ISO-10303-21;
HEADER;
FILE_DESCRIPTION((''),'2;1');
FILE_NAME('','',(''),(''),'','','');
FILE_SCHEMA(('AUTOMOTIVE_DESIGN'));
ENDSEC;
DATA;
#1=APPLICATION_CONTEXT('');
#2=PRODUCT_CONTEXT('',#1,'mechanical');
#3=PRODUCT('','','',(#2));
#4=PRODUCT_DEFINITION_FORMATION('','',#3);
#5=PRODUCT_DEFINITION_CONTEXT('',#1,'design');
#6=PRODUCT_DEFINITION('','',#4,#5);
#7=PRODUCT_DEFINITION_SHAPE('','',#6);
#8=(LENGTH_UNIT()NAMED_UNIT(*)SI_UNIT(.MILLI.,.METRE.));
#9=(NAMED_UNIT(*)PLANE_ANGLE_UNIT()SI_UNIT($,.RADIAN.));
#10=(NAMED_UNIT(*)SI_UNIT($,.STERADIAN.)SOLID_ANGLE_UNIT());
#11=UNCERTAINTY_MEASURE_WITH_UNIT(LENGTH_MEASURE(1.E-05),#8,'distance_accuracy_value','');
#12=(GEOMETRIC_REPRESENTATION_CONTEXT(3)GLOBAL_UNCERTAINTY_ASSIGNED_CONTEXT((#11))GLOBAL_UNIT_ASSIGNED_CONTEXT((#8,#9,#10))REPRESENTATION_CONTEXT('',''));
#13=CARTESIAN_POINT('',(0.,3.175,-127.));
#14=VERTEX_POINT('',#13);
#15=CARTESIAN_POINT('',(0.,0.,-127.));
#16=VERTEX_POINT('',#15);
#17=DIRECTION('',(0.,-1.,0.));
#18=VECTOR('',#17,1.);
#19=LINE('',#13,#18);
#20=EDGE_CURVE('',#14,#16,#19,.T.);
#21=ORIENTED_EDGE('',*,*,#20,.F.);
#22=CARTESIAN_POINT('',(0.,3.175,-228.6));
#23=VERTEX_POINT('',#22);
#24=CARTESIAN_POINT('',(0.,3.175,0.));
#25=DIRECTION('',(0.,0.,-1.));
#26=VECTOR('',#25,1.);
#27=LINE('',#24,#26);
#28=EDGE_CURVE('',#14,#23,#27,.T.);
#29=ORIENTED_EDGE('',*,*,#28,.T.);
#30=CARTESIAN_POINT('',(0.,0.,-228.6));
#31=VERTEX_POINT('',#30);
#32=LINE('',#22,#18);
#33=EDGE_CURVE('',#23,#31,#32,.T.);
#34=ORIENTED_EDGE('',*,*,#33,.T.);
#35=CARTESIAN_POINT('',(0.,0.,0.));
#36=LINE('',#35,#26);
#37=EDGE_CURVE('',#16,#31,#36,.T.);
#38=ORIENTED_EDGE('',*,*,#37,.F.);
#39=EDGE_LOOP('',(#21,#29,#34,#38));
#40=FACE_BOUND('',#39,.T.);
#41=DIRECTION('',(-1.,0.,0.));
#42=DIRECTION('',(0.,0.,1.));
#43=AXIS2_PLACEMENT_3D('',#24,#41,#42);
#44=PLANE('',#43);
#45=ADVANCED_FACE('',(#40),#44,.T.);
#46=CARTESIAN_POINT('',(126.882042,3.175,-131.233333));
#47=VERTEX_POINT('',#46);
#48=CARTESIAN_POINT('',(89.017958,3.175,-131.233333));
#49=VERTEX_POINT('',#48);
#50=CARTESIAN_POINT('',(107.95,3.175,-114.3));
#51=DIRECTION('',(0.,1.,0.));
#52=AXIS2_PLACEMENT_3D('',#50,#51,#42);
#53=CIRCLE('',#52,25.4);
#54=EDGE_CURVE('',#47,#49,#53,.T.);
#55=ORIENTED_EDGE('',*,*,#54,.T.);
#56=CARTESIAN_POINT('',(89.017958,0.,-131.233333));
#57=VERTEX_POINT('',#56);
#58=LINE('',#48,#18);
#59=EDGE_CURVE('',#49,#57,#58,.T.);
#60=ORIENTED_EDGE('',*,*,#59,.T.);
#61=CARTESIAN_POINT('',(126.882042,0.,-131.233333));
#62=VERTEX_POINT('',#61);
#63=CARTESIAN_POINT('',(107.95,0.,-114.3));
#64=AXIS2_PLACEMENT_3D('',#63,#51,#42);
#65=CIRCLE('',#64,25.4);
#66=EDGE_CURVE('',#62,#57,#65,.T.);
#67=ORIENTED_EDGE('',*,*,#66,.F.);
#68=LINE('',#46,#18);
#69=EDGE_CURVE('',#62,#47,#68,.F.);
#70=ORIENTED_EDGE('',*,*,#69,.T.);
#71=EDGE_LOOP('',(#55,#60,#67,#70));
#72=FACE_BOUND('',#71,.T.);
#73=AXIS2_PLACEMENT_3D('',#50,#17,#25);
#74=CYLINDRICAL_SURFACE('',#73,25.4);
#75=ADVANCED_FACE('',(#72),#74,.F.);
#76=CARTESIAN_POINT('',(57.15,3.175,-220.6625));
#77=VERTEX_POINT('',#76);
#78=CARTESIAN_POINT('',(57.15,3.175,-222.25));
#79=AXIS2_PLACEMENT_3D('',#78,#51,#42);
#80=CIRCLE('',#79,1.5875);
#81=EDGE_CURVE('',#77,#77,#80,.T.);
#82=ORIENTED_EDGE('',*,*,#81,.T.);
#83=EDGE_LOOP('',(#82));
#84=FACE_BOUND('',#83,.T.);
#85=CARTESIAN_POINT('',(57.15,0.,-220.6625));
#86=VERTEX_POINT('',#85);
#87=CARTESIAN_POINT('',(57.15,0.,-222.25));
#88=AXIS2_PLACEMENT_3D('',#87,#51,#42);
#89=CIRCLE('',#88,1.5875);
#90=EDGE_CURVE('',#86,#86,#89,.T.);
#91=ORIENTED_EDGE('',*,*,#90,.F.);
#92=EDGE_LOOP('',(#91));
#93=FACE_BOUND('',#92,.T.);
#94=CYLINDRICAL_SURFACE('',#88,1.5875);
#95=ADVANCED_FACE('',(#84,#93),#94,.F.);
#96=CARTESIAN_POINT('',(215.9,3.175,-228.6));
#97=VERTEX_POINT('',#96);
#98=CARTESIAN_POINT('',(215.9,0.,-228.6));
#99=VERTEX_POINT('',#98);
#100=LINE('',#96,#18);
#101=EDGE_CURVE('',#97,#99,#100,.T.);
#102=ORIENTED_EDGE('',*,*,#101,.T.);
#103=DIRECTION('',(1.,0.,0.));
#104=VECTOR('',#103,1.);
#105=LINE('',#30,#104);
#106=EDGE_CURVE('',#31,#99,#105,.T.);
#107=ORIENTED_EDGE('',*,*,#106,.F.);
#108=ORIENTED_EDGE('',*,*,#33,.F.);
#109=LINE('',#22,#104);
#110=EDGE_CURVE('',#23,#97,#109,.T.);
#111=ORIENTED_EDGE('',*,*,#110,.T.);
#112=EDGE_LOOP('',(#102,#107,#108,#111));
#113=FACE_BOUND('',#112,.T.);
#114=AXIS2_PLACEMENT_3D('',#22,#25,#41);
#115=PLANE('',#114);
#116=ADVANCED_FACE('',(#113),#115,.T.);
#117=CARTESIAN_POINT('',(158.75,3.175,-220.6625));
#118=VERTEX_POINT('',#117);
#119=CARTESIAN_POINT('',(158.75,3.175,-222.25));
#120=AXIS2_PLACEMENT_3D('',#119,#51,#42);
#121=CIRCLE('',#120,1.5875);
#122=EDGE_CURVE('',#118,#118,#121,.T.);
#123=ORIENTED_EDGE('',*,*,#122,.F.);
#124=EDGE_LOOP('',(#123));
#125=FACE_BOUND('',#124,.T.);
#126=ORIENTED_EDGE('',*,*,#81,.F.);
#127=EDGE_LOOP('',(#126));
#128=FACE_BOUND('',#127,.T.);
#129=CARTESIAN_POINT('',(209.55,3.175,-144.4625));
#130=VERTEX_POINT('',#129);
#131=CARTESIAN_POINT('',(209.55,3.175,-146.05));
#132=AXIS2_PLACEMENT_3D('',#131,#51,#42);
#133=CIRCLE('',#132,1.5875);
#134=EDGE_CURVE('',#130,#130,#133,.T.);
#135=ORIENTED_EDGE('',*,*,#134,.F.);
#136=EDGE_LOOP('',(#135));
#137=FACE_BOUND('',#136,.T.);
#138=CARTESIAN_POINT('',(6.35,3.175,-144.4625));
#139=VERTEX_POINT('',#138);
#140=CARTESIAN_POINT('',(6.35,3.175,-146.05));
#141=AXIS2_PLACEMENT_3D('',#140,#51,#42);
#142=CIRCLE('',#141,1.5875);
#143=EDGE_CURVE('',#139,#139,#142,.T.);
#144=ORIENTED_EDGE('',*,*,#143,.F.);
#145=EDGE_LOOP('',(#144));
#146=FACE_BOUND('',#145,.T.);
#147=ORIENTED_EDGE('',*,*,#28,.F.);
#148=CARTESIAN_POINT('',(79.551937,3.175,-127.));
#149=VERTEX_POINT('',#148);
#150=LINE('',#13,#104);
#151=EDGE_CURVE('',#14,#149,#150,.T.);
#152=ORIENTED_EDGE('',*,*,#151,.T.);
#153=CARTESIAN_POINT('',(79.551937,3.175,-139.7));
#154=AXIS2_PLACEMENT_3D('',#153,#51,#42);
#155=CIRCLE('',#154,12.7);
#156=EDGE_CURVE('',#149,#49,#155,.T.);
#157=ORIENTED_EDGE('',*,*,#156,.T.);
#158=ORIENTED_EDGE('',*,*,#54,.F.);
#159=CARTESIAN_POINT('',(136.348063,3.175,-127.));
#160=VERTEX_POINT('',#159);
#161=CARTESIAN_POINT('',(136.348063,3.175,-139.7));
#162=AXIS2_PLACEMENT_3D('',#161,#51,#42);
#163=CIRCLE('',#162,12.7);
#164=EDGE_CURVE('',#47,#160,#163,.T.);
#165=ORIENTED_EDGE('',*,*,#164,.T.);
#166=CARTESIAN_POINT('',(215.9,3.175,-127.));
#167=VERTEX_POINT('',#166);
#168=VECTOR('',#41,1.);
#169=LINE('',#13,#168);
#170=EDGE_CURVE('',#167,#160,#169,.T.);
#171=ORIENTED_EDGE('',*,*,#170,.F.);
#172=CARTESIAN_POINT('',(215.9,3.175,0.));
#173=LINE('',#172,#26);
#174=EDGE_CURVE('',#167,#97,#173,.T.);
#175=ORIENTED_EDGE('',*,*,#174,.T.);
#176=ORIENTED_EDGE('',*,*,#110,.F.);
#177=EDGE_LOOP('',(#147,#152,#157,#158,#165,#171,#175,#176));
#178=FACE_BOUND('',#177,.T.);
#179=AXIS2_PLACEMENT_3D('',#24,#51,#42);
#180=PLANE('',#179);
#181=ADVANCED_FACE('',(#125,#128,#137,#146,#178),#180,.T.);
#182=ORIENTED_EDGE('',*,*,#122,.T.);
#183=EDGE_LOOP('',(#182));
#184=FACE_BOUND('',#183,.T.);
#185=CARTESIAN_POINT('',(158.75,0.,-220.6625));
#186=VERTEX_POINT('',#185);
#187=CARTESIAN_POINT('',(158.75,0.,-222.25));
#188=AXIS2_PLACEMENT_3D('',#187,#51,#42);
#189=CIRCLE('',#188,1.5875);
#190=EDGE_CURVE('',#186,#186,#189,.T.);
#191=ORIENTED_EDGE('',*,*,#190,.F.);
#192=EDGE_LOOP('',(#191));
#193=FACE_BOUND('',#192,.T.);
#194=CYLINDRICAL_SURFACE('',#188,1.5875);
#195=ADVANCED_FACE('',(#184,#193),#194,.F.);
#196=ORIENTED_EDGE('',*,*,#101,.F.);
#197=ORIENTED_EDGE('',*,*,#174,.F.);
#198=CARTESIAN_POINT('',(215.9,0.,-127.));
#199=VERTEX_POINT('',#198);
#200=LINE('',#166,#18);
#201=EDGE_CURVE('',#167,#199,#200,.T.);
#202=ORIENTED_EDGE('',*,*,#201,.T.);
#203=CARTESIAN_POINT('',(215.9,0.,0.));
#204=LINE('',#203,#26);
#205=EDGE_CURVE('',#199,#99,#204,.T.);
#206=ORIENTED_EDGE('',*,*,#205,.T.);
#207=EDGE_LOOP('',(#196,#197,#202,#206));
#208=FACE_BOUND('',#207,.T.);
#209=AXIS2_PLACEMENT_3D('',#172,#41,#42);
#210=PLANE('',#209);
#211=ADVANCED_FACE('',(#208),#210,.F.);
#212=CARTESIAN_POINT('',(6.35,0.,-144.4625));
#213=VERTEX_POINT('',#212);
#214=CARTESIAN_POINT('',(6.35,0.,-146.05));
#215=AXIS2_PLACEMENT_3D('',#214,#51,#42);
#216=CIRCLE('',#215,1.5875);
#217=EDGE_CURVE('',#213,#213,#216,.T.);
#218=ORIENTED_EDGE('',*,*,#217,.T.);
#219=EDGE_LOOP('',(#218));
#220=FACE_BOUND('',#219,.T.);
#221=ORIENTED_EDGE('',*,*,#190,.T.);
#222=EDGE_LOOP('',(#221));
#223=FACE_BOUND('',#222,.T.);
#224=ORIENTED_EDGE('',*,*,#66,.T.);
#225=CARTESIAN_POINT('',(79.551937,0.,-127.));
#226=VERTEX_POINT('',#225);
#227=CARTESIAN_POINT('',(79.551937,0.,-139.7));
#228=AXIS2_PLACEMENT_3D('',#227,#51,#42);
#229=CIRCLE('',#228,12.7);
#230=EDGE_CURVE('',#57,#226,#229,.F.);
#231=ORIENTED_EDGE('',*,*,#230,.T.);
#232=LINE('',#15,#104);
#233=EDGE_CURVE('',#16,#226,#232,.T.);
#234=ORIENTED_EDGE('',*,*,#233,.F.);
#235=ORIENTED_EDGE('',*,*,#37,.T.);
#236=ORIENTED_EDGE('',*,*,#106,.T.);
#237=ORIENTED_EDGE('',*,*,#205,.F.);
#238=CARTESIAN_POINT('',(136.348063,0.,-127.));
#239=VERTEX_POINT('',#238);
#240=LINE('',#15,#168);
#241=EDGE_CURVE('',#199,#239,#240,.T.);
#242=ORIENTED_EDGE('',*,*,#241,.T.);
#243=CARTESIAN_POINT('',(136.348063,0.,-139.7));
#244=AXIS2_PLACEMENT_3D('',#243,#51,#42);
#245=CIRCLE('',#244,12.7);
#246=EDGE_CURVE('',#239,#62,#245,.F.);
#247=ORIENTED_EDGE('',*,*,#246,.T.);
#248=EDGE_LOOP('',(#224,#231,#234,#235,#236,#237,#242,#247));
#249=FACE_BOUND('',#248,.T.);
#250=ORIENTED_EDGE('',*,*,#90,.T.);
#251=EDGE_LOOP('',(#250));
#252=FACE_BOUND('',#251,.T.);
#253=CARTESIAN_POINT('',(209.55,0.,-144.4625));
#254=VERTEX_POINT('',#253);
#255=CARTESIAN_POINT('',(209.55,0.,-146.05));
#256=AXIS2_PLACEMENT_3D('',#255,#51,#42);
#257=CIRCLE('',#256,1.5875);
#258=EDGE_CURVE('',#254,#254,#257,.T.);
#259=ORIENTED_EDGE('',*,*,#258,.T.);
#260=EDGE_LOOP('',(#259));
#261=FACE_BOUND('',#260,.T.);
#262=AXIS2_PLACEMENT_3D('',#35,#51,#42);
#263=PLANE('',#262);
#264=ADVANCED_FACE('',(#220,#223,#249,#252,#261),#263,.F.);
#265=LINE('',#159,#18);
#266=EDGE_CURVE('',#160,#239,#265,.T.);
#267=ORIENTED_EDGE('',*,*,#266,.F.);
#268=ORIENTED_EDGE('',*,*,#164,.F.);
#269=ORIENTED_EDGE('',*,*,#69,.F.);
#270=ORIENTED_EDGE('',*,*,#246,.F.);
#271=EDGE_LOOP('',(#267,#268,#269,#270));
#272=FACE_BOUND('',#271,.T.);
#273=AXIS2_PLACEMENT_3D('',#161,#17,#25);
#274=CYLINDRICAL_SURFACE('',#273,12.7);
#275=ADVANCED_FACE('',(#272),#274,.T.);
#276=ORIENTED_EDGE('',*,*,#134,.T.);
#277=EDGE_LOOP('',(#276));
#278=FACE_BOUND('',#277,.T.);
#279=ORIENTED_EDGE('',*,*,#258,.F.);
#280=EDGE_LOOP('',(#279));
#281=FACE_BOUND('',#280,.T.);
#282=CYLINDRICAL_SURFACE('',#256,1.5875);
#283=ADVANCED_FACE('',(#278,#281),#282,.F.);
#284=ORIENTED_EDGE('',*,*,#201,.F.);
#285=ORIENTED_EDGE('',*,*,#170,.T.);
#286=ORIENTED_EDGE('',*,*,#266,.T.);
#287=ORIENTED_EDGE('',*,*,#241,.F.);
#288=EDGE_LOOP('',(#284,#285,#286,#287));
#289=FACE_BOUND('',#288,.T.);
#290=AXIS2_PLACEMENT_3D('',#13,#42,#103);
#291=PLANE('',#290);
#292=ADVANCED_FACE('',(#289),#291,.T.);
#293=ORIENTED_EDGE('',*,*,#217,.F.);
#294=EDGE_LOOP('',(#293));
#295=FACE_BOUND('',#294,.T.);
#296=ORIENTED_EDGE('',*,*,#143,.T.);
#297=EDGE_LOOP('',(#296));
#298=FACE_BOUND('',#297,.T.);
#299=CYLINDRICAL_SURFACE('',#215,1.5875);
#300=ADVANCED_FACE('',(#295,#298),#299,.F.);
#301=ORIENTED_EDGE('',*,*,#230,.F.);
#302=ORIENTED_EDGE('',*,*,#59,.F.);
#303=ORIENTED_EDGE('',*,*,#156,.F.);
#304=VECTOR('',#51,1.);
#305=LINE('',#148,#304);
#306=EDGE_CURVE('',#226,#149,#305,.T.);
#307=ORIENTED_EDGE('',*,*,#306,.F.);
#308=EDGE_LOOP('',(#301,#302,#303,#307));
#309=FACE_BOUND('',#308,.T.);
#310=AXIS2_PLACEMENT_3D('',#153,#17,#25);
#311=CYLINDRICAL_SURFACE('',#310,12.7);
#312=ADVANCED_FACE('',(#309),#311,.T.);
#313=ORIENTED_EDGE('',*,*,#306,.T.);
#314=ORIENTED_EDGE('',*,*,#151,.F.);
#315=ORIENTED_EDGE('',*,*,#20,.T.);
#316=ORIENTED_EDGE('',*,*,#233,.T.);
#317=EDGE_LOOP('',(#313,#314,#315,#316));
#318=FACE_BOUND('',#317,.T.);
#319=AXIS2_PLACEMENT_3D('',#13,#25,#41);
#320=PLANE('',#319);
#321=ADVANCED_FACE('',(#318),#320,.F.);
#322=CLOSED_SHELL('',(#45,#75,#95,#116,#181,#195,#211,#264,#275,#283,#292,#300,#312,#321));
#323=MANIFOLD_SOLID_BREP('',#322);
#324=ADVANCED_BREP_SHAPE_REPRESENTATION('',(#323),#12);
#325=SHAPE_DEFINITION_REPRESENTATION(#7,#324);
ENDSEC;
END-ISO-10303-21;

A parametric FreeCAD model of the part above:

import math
import FreeCAD as App
import Part
import Sketcher

V = App.Vector
Q = App.Units.Quantity


def edges_at(feature, points):
    """Names of the edges that pass closest to the given points."""
    edges = feature.Shape.Edges
    near = lambda p: min(range(len(edges)), key=lambda i: edges[i].distToShape(Part.Vertex(*p))[0])
    return sorted({f"Edge{near(p) + 1}" for p in points})

doc = App.newDocument("Part")
params = doc.addObject("Spreadsheet::Sheet", "Params")
for row, (alias, value) in enumerate([
    ("sketch1_radius", "1 in"),
    ("sketch1_height", "4 in"),
    ("sketch1_width", "8.5 in"),
    ("pad1_length", "0.125 in"),
    ("fillet_radius", "0.5 in"),
    ("sketch2_diameter", "0.125 in"),
], start=1):
    params.set(f"A{row}", alias)
    params.set(f"B{row}", "=" + value)
    params.setAlias(f"B{row}", alias)

body = doc.addObject("PartDesign::Body", "Body")

sketch1 = body.newObject("Sketcher::SketchObject", "Sketch")
sketch1.AttachmentSupport = (doc.getObject("XZ_Plane"), [""])
sketch1.MapMode = "FlatFace"
sketch1.addGeometry([
    Part.LineSegment(V(0, -228.6, 0), V(0, -127, 0)),
    Part.LineSegment(V(0, -127, 0), V(85.952955, -127, 0)),
    Part.ArcOfCircle(Part.Circle(V(107.95, -114.3, 0), V(0, 0, 1), 25.4), math.radians(-150), math.radians(-30)),
    Part.LineSegment(V(129.947045, -127, 0), V(215.9, -127, 0)),
    Part.LineSegment(V(215.9, -127, 0), V(215.9, -228.6, 0)),
    Part.LineSegment(V(215.9, -228.6, 0), V(0, -228.6, 0)),
], False)
sketch1.addConstraint([
    Sketcher.Constraint("Coincident", 0, 2, 1, 1),
    Sketcher.Constraint("Coincident", 1, 2, 2, 1),
    Sketcher.Constraint("Coincident", 2, 2, 3, 1),
    Sketcher.Constraint("Coincident", 3, 2, 4, 1),
    Sketcher.Constraint("Coincident", 4, 2, 5, 1),
    Sketcher.Constraint("Coincident", 5, 2, 0, 1),
    Sketcher.Constraint("Vertical", 0),
    Sketcher.Constraint("Horizontal", 1),
    Sketcher.Constraint("Horizontal", 3),
    Sketcher.Constraint("Vertical", 4),
    Sketcher.Constraint("Horizontal", 5),
    Sketcher.Constraint("PointOnObject", 0, 2, -2),
    Sketcher.Constraint("Horizontal", 1, 2, 2, 2),
    Sketcher.Constraint("Equal", 1, 3),
    Sketcher.Constraint("Radius", 2, Q("1 in")),
    Sketcher.Constraint("DistanceY", 0, 1, 0, 2, Q("4 in")),
    Sketcher.Constraint("DistanceX", 5, 2, 5, 1, Q("8.5 in")),
    Sketcher.Constraint("DistanceY", 0, 2, -1, 1, Q("5 in")),
    Sketcher.Constraint("DistanceY", 2, 3, -1, 1, Q("4.5 in")),
])
sketch1.setExpression("Constraints[14]", "Params.sketch1_radius")
sketch1.setExpression("Constraints[15]", "Params.sketch1_height")
sketch1.setExpression("Constraints[16]", "Params.sketch1_width")
pad1 = body.newObject("PartDesign::Pad", "Pad")
pad1.Profile = sketch1
pad1.setExpression("Length", "Params.pad1_length")
pad1.Reversed = True
doc.recompute()

fillet = body.newObject("PartDesign::Fillet", "Fillet")
fillet.Base = (pad1, edges_at(pad1, [(85.953, 1.587, -127), (129.947, 1.587, -127)]))
fillet.setExpression("Radius", "Params.fillet_radius")

sketch2 = body.newObject("Sketcher::SketchObject", "Sketch001")
sketch2.AttachmentSupport = (doc.getObject("XZ_Plane"), [""])
sketch2.MapMode = "FlatFace"
sketch2.AttachmentOffset = App.Placement(V(0, 0, -0.125 * 25.4), App.Rotation())
sketch2.addGeometry([
    Part.Circle(V(6.35, -146.05, 0), V(0, 0, 1), 1.5875),
    Part.Circle(V(57.15, -222.25, 0), V(0, 0, 1), 1.5875),
    Part.Circle(V(158.75, -222.25, 0), V(0, 0, 1), 1.5875),
    Part.Circle(V(209.55, -146.05, 0), V(0, 0, 1), 1.5875),
], False)
sketch2.addConstraint([
    Sketcher.Constraint("Equal", 0, 1),
    Sketcher.Constraint("Equal", 1, 2),
    Sketcher.Constraint("Equal", 2, 3),
    Sketcher.Constraint("Horizontal", 1, 3, 2, 3),
    Sketcher.Constraint("Horizontal", 0, 3, 3, 3),
    Sketcher.Constraint("Diameter", 0, Q("0.125 in")),
    Sketcher.Constraint("DistanceX", 0, 3, 1, 3, Q("2 in")),
    Sketcher.Constraint("DistanceY", 1, 3, 0, 3, Q("3 in")),
    Sketcher.Constraint("DistanceX", 1, 3, 2, 3, Q("4 in")),
    Sketcher.Constraint("DistanceX", 2, 3, 3, 3, Q("2 in")),
    Sketcher.Constraint("DistanceX", -1, 1, 0, 3, Q("0.25 in")),
    Sketcher.Constraint("DistanceY", 0, 3, -1, 1, Q("5.75 in")),
])
sketch2.setExpression("Constraints[5]", "Params.sketch2_diameter")
pocket1 = body.newObject("PartDesign::Pocket", "Pocket")
pocket1.Profile = sketch2
pocket1.Type = "ThroughAll"
pocket1.Reversed = True

doc.recompute()
